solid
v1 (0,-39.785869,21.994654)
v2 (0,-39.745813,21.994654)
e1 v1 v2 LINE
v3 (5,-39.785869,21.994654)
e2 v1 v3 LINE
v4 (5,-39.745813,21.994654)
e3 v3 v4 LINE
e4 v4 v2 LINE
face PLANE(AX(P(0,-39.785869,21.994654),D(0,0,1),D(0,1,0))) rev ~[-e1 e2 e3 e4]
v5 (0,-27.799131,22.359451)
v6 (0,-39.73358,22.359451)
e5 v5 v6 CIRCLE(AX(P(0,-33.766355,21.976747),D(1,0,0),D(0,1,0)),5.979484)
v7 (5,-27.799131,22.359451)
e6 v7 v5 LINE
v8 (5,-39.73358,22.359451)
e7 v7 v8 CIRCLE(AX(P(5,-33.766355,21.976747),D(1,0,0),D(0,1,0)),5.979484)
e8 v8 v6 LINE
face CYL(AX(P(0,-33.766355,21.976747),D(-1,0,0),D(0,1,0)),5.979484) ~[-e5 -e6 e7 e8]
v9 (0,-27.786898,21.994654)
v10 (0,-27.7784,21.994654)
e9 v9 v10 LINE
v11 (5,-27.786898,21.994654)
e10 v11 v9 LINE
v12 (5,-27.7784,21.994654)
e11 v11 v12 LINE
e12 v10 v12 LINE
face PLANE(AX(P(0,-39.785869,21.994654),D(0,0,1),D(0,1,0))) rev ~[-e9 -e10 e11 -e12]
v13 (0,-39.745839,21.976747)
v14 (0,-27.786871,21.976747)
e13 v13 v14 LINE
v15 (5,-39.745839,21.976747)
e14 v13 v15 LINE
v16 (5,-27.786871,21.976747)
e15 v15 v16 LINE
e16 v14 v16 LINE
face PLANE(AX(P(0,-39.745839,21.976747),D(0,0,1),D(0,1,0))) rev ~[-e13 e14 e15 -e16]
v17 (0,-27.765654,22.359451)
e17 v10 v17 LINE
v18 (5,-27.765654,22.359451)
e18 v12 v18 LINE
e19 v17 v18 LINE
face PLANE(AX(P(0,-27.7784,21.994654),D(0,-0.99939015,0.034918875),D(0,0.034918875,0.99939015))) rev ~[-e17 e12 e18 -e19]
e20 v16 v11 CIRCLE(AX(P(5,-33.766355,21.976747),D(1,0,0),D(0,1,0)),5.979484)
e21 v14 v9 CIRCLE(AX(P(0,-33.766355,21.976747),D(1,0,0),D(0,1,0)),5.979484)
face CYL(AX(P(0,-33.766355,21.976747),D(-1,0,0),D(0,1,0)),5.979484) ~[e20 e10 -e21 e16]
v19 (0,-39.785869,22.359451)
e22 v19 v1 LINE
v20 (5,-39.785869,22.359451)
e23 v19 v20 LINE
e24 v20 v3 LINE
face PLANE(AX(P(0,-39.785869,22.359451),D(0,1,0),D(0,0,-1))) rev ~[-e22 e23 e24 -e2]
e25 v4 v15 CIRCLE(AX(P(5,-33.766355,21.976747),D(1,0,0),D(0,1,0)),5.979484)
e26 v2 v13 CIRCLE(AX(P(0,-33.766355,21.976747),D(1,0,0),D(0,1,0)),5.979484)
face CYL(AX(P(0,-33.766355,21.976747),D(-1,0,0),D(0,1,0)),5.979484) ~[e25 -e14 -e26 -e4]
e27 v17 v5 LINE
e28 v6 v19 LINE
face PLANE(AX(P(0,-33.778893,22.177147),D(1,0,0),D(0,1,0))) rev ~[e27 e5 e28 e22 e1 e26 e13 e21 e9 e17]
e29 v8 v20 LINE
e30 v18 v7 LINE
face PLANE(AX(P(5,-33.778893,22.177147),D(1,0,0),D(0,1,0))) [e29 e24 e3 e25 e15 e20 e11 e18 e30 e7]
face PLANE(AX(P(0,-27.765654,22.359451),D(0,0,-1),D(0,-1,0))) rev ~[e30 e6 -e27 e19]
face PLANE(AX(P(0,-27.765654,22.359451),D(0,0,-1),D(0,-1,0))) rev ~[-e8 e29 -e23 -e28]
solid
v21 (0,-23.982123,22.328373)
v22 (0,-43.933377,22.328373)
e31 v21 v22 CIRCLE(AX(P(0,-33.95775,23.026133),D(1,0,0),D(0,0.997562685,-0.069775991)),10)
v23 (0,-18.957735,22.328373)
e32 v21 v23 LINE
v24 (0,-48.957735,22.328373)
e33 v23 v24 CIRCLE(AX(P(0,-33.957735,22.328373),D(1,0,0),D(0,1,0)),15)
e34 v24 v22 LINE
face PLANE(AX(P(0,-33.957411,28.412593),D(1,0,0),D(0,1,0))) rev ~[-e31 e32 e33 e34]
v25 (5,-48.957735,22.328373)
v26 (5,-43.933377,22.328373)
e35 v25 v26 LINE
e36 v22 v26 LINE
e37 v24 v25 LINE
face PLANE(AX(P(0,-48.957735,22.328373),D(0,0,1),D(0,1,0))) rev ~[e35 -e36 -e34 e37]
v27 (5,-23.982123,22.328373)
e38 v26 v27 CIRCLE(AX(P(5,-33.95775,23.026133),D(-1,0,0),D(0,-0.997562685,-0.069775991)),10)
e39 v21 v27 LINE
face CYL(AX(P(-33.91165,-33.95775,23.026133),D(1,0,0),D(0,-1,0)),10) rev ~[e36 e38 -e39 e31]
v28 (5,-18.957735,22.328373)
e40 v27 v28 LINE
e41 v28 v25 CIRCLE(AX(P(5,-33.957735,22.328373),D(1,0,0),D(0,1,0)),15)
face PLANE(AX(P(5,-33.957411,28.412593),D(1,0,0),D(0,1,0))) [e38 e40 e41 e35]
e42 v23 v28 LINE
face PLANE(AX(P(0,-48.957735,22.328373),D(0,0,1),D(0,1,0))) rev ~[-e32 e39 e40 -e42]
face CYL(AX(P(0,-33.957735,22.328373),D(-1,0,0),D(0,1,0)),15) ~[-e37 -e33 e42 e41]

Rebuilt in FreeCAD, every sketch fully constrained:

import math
import FreeCAD as App
import Part
import Sketcher


def add_polygon(sketch, points):
    """Adds a closed chain of lines whose ends are joined by coincident constraints."""
    first, n = sketch.GeometryCount, len(points)
    for a, b in zip(points, points[1:] + points[:1]):
        sketch.addGeometry(Part.LineSegment(App.Vector(*a, 0), App.Vector(*b, 0)), False)
    for i in range(n):
        sketch.addConstraint(Sketcher.Constraint("Coincident", first + i, 2, first + (i + 1) % n, 1))

doc = App.newDocument("Part")
body = doc.addObject("PartDesign::Body", "Body")

sketch1 = body.newObject("Sketcher::SketchObject", "Sketch")
sketch1.AttachmentSupport = (doc.getObject("YZ_Plane"), [""])
sketch1.MapMode = "FlatFace"
sketch1.addGeometry(Part.ArcOfCircle(Part.Circle(App.Vector(-34, 22, 0), App.Vector(0, 0, 1), 15), math.radians(0), math.radians(180)), False)
sketch1.addGeometry(Part.LineSegment(App.Vector(-49, 22, 0), App.Vector(-19, 22, 0)), False)
sketch1.addConstraint(Sketcher.Constraint("Coincident", 0, 1, 1, 2))
sketch1.addConstraint(Sketcher.Constraint("Coincident", 1, 1, 0, 2))
sketch1.addConstraint(Sketcher.Constraint("Horizontal", 1))
sketch1.addConstraint(Sketcher.Constraint("Radius", 0, 15.0))
sketch1.addConstraint(Sketcher.Constraint("DistanceX", 0, 3, -1, 1, 33.957735))
sketch1.addConstraint(Sketcher.Constraint("DistanceY", -1, 1, 0, 3, 22.328373))
sketch1.addConstraint(Sketcher.Constraint("DistanceY", -1, 1, 0, 1, 22.328373))
pad1 = body.newObject("PartDesign::Pad", "Pad")
pad1.Profile = sketch1
pad1.Length = 5

sketch2 = body.newObject("Sketcher::SketchObject", "Sketch001")
sketch2.AttachmentSupport = (doc.getObject("YZ_Plane"), [""])
sketch2.MapMode = "FlatFace"
sketch2.addGeometry(Part.Circle(App.Vector(-34, 23, 0), App.Vector(0, 0, 1), 10), False)
sketch2.addConstraint(Sketcher.Constraint("Diameter", 0, 20.0))
sketch2.addConstraint(Sketcher.Constraint("DistanceX", 0, 3, -1, 1, 33.95775))
sketch2.addConstraint(Sketcher.Constraint("DistanceY", -1, 1, 0, 3, 23.026133))
doc.recompute()
hole = body.newObject("PartDesign::Hole", "Hole")
hole.Profile = sketch2
hole.ThreadType = "None"
hole.Diameter = 20
hole.DepthType = "ThroughAll"
hole.Reversed = True
body2 = doc.addObject("PartDesign::Body", "Body001")

sketch3 = body2.newObject("Sketcher::SketchObject", "Sketch002")
sketch3.AttachmentSupport = (doc.getObject("YZ_Plane001"), [""])
sketch3.MapMode = "FlatFace"
sketch3.addGeometry(Part.LineSegment(App.Vector(-40, 22, 0), App.Vector(-28, 22, 0)), False)
sketch3.addGeometry(Part.ArcOfCircle(Part.Circle(App.Vector(-34, 22, 0), App.Vector(0, 0, 1), 6), math.radians(0), math.radians(180)), False)
sketch3.addConstraint(Sketcher.Constraint("Coincident", 0, 1, 1, 2))
sketch3.addConstraint(Sketcher.Constraint("Coincident", 1, 1, 0, 2))
sketch3.addConstraint(Sketcher.Constraint("Horizontal", 0))
sketch3.addConstraint(Sketcher.Constraint("Horizontal", 1, 3, 0, 1))
sketch3.addConstraint(Sketcher.Constraint("Radius", 1, 5.979484))
sketch3.addConstraint(Sketcher.Constraint("DistanceX", 0, 1, -1, 1, 39.745839))
sketch3.addConstraint(Sketcher.Constraint("DistanceY", -1, 1, 1, 3, 21.976747))
pad2 = body2.newObject("PartDesign::Pad", "Pad001")
pad2.Profile = sketch3
pad2.Length = 5

sketch4 = body2.newObject("Sketcher::SketchObject", "Sketch003")
sketch4.AttachmentSupport = (doc.getObject("YZ_Plane001"), [""])
sketch4.MapMode = "FlatFace"
add_polygon(sketch4, [(-27.78, 21.99), (-27.77, 22.36), (-39.79, 22.36), (-39.79, 21.99)])
sketch4.addConstraint(Sketcher.Constraint("Horizontal", 1))
sketch4.addConstraint(Sketcher.Constraint("Vertical", 2))
sketch4.addConstraint(Sketcher.Constraint("Horizontal", 3))
sketch4.addConstraint(Sketcher.Constraint("DistanceX", 3, 1, 3, 2, 12.007469))
sketch4.addConstraint(Sketcher.Constraint("DistanceX", 3, 2, -1, 1, 27.7784))
sketch4.addConstraint(Sketcher.Constraint("Distance", 0, 0.36502))
sketch4.addConstraint(Sketcher.Constraint("DistanceX", 1, 2, 1, 1, 12.020215))
sketch4.addConstraint(Sketcher.Constraint("DistanceY", -1, 1, 0, 2, 22.359451))
pad3 = body2.newObject("PartDesign::Pad", "Pad002")
pad3.Profile = sketch4
pad3.Length = 5

doc.recompute()
